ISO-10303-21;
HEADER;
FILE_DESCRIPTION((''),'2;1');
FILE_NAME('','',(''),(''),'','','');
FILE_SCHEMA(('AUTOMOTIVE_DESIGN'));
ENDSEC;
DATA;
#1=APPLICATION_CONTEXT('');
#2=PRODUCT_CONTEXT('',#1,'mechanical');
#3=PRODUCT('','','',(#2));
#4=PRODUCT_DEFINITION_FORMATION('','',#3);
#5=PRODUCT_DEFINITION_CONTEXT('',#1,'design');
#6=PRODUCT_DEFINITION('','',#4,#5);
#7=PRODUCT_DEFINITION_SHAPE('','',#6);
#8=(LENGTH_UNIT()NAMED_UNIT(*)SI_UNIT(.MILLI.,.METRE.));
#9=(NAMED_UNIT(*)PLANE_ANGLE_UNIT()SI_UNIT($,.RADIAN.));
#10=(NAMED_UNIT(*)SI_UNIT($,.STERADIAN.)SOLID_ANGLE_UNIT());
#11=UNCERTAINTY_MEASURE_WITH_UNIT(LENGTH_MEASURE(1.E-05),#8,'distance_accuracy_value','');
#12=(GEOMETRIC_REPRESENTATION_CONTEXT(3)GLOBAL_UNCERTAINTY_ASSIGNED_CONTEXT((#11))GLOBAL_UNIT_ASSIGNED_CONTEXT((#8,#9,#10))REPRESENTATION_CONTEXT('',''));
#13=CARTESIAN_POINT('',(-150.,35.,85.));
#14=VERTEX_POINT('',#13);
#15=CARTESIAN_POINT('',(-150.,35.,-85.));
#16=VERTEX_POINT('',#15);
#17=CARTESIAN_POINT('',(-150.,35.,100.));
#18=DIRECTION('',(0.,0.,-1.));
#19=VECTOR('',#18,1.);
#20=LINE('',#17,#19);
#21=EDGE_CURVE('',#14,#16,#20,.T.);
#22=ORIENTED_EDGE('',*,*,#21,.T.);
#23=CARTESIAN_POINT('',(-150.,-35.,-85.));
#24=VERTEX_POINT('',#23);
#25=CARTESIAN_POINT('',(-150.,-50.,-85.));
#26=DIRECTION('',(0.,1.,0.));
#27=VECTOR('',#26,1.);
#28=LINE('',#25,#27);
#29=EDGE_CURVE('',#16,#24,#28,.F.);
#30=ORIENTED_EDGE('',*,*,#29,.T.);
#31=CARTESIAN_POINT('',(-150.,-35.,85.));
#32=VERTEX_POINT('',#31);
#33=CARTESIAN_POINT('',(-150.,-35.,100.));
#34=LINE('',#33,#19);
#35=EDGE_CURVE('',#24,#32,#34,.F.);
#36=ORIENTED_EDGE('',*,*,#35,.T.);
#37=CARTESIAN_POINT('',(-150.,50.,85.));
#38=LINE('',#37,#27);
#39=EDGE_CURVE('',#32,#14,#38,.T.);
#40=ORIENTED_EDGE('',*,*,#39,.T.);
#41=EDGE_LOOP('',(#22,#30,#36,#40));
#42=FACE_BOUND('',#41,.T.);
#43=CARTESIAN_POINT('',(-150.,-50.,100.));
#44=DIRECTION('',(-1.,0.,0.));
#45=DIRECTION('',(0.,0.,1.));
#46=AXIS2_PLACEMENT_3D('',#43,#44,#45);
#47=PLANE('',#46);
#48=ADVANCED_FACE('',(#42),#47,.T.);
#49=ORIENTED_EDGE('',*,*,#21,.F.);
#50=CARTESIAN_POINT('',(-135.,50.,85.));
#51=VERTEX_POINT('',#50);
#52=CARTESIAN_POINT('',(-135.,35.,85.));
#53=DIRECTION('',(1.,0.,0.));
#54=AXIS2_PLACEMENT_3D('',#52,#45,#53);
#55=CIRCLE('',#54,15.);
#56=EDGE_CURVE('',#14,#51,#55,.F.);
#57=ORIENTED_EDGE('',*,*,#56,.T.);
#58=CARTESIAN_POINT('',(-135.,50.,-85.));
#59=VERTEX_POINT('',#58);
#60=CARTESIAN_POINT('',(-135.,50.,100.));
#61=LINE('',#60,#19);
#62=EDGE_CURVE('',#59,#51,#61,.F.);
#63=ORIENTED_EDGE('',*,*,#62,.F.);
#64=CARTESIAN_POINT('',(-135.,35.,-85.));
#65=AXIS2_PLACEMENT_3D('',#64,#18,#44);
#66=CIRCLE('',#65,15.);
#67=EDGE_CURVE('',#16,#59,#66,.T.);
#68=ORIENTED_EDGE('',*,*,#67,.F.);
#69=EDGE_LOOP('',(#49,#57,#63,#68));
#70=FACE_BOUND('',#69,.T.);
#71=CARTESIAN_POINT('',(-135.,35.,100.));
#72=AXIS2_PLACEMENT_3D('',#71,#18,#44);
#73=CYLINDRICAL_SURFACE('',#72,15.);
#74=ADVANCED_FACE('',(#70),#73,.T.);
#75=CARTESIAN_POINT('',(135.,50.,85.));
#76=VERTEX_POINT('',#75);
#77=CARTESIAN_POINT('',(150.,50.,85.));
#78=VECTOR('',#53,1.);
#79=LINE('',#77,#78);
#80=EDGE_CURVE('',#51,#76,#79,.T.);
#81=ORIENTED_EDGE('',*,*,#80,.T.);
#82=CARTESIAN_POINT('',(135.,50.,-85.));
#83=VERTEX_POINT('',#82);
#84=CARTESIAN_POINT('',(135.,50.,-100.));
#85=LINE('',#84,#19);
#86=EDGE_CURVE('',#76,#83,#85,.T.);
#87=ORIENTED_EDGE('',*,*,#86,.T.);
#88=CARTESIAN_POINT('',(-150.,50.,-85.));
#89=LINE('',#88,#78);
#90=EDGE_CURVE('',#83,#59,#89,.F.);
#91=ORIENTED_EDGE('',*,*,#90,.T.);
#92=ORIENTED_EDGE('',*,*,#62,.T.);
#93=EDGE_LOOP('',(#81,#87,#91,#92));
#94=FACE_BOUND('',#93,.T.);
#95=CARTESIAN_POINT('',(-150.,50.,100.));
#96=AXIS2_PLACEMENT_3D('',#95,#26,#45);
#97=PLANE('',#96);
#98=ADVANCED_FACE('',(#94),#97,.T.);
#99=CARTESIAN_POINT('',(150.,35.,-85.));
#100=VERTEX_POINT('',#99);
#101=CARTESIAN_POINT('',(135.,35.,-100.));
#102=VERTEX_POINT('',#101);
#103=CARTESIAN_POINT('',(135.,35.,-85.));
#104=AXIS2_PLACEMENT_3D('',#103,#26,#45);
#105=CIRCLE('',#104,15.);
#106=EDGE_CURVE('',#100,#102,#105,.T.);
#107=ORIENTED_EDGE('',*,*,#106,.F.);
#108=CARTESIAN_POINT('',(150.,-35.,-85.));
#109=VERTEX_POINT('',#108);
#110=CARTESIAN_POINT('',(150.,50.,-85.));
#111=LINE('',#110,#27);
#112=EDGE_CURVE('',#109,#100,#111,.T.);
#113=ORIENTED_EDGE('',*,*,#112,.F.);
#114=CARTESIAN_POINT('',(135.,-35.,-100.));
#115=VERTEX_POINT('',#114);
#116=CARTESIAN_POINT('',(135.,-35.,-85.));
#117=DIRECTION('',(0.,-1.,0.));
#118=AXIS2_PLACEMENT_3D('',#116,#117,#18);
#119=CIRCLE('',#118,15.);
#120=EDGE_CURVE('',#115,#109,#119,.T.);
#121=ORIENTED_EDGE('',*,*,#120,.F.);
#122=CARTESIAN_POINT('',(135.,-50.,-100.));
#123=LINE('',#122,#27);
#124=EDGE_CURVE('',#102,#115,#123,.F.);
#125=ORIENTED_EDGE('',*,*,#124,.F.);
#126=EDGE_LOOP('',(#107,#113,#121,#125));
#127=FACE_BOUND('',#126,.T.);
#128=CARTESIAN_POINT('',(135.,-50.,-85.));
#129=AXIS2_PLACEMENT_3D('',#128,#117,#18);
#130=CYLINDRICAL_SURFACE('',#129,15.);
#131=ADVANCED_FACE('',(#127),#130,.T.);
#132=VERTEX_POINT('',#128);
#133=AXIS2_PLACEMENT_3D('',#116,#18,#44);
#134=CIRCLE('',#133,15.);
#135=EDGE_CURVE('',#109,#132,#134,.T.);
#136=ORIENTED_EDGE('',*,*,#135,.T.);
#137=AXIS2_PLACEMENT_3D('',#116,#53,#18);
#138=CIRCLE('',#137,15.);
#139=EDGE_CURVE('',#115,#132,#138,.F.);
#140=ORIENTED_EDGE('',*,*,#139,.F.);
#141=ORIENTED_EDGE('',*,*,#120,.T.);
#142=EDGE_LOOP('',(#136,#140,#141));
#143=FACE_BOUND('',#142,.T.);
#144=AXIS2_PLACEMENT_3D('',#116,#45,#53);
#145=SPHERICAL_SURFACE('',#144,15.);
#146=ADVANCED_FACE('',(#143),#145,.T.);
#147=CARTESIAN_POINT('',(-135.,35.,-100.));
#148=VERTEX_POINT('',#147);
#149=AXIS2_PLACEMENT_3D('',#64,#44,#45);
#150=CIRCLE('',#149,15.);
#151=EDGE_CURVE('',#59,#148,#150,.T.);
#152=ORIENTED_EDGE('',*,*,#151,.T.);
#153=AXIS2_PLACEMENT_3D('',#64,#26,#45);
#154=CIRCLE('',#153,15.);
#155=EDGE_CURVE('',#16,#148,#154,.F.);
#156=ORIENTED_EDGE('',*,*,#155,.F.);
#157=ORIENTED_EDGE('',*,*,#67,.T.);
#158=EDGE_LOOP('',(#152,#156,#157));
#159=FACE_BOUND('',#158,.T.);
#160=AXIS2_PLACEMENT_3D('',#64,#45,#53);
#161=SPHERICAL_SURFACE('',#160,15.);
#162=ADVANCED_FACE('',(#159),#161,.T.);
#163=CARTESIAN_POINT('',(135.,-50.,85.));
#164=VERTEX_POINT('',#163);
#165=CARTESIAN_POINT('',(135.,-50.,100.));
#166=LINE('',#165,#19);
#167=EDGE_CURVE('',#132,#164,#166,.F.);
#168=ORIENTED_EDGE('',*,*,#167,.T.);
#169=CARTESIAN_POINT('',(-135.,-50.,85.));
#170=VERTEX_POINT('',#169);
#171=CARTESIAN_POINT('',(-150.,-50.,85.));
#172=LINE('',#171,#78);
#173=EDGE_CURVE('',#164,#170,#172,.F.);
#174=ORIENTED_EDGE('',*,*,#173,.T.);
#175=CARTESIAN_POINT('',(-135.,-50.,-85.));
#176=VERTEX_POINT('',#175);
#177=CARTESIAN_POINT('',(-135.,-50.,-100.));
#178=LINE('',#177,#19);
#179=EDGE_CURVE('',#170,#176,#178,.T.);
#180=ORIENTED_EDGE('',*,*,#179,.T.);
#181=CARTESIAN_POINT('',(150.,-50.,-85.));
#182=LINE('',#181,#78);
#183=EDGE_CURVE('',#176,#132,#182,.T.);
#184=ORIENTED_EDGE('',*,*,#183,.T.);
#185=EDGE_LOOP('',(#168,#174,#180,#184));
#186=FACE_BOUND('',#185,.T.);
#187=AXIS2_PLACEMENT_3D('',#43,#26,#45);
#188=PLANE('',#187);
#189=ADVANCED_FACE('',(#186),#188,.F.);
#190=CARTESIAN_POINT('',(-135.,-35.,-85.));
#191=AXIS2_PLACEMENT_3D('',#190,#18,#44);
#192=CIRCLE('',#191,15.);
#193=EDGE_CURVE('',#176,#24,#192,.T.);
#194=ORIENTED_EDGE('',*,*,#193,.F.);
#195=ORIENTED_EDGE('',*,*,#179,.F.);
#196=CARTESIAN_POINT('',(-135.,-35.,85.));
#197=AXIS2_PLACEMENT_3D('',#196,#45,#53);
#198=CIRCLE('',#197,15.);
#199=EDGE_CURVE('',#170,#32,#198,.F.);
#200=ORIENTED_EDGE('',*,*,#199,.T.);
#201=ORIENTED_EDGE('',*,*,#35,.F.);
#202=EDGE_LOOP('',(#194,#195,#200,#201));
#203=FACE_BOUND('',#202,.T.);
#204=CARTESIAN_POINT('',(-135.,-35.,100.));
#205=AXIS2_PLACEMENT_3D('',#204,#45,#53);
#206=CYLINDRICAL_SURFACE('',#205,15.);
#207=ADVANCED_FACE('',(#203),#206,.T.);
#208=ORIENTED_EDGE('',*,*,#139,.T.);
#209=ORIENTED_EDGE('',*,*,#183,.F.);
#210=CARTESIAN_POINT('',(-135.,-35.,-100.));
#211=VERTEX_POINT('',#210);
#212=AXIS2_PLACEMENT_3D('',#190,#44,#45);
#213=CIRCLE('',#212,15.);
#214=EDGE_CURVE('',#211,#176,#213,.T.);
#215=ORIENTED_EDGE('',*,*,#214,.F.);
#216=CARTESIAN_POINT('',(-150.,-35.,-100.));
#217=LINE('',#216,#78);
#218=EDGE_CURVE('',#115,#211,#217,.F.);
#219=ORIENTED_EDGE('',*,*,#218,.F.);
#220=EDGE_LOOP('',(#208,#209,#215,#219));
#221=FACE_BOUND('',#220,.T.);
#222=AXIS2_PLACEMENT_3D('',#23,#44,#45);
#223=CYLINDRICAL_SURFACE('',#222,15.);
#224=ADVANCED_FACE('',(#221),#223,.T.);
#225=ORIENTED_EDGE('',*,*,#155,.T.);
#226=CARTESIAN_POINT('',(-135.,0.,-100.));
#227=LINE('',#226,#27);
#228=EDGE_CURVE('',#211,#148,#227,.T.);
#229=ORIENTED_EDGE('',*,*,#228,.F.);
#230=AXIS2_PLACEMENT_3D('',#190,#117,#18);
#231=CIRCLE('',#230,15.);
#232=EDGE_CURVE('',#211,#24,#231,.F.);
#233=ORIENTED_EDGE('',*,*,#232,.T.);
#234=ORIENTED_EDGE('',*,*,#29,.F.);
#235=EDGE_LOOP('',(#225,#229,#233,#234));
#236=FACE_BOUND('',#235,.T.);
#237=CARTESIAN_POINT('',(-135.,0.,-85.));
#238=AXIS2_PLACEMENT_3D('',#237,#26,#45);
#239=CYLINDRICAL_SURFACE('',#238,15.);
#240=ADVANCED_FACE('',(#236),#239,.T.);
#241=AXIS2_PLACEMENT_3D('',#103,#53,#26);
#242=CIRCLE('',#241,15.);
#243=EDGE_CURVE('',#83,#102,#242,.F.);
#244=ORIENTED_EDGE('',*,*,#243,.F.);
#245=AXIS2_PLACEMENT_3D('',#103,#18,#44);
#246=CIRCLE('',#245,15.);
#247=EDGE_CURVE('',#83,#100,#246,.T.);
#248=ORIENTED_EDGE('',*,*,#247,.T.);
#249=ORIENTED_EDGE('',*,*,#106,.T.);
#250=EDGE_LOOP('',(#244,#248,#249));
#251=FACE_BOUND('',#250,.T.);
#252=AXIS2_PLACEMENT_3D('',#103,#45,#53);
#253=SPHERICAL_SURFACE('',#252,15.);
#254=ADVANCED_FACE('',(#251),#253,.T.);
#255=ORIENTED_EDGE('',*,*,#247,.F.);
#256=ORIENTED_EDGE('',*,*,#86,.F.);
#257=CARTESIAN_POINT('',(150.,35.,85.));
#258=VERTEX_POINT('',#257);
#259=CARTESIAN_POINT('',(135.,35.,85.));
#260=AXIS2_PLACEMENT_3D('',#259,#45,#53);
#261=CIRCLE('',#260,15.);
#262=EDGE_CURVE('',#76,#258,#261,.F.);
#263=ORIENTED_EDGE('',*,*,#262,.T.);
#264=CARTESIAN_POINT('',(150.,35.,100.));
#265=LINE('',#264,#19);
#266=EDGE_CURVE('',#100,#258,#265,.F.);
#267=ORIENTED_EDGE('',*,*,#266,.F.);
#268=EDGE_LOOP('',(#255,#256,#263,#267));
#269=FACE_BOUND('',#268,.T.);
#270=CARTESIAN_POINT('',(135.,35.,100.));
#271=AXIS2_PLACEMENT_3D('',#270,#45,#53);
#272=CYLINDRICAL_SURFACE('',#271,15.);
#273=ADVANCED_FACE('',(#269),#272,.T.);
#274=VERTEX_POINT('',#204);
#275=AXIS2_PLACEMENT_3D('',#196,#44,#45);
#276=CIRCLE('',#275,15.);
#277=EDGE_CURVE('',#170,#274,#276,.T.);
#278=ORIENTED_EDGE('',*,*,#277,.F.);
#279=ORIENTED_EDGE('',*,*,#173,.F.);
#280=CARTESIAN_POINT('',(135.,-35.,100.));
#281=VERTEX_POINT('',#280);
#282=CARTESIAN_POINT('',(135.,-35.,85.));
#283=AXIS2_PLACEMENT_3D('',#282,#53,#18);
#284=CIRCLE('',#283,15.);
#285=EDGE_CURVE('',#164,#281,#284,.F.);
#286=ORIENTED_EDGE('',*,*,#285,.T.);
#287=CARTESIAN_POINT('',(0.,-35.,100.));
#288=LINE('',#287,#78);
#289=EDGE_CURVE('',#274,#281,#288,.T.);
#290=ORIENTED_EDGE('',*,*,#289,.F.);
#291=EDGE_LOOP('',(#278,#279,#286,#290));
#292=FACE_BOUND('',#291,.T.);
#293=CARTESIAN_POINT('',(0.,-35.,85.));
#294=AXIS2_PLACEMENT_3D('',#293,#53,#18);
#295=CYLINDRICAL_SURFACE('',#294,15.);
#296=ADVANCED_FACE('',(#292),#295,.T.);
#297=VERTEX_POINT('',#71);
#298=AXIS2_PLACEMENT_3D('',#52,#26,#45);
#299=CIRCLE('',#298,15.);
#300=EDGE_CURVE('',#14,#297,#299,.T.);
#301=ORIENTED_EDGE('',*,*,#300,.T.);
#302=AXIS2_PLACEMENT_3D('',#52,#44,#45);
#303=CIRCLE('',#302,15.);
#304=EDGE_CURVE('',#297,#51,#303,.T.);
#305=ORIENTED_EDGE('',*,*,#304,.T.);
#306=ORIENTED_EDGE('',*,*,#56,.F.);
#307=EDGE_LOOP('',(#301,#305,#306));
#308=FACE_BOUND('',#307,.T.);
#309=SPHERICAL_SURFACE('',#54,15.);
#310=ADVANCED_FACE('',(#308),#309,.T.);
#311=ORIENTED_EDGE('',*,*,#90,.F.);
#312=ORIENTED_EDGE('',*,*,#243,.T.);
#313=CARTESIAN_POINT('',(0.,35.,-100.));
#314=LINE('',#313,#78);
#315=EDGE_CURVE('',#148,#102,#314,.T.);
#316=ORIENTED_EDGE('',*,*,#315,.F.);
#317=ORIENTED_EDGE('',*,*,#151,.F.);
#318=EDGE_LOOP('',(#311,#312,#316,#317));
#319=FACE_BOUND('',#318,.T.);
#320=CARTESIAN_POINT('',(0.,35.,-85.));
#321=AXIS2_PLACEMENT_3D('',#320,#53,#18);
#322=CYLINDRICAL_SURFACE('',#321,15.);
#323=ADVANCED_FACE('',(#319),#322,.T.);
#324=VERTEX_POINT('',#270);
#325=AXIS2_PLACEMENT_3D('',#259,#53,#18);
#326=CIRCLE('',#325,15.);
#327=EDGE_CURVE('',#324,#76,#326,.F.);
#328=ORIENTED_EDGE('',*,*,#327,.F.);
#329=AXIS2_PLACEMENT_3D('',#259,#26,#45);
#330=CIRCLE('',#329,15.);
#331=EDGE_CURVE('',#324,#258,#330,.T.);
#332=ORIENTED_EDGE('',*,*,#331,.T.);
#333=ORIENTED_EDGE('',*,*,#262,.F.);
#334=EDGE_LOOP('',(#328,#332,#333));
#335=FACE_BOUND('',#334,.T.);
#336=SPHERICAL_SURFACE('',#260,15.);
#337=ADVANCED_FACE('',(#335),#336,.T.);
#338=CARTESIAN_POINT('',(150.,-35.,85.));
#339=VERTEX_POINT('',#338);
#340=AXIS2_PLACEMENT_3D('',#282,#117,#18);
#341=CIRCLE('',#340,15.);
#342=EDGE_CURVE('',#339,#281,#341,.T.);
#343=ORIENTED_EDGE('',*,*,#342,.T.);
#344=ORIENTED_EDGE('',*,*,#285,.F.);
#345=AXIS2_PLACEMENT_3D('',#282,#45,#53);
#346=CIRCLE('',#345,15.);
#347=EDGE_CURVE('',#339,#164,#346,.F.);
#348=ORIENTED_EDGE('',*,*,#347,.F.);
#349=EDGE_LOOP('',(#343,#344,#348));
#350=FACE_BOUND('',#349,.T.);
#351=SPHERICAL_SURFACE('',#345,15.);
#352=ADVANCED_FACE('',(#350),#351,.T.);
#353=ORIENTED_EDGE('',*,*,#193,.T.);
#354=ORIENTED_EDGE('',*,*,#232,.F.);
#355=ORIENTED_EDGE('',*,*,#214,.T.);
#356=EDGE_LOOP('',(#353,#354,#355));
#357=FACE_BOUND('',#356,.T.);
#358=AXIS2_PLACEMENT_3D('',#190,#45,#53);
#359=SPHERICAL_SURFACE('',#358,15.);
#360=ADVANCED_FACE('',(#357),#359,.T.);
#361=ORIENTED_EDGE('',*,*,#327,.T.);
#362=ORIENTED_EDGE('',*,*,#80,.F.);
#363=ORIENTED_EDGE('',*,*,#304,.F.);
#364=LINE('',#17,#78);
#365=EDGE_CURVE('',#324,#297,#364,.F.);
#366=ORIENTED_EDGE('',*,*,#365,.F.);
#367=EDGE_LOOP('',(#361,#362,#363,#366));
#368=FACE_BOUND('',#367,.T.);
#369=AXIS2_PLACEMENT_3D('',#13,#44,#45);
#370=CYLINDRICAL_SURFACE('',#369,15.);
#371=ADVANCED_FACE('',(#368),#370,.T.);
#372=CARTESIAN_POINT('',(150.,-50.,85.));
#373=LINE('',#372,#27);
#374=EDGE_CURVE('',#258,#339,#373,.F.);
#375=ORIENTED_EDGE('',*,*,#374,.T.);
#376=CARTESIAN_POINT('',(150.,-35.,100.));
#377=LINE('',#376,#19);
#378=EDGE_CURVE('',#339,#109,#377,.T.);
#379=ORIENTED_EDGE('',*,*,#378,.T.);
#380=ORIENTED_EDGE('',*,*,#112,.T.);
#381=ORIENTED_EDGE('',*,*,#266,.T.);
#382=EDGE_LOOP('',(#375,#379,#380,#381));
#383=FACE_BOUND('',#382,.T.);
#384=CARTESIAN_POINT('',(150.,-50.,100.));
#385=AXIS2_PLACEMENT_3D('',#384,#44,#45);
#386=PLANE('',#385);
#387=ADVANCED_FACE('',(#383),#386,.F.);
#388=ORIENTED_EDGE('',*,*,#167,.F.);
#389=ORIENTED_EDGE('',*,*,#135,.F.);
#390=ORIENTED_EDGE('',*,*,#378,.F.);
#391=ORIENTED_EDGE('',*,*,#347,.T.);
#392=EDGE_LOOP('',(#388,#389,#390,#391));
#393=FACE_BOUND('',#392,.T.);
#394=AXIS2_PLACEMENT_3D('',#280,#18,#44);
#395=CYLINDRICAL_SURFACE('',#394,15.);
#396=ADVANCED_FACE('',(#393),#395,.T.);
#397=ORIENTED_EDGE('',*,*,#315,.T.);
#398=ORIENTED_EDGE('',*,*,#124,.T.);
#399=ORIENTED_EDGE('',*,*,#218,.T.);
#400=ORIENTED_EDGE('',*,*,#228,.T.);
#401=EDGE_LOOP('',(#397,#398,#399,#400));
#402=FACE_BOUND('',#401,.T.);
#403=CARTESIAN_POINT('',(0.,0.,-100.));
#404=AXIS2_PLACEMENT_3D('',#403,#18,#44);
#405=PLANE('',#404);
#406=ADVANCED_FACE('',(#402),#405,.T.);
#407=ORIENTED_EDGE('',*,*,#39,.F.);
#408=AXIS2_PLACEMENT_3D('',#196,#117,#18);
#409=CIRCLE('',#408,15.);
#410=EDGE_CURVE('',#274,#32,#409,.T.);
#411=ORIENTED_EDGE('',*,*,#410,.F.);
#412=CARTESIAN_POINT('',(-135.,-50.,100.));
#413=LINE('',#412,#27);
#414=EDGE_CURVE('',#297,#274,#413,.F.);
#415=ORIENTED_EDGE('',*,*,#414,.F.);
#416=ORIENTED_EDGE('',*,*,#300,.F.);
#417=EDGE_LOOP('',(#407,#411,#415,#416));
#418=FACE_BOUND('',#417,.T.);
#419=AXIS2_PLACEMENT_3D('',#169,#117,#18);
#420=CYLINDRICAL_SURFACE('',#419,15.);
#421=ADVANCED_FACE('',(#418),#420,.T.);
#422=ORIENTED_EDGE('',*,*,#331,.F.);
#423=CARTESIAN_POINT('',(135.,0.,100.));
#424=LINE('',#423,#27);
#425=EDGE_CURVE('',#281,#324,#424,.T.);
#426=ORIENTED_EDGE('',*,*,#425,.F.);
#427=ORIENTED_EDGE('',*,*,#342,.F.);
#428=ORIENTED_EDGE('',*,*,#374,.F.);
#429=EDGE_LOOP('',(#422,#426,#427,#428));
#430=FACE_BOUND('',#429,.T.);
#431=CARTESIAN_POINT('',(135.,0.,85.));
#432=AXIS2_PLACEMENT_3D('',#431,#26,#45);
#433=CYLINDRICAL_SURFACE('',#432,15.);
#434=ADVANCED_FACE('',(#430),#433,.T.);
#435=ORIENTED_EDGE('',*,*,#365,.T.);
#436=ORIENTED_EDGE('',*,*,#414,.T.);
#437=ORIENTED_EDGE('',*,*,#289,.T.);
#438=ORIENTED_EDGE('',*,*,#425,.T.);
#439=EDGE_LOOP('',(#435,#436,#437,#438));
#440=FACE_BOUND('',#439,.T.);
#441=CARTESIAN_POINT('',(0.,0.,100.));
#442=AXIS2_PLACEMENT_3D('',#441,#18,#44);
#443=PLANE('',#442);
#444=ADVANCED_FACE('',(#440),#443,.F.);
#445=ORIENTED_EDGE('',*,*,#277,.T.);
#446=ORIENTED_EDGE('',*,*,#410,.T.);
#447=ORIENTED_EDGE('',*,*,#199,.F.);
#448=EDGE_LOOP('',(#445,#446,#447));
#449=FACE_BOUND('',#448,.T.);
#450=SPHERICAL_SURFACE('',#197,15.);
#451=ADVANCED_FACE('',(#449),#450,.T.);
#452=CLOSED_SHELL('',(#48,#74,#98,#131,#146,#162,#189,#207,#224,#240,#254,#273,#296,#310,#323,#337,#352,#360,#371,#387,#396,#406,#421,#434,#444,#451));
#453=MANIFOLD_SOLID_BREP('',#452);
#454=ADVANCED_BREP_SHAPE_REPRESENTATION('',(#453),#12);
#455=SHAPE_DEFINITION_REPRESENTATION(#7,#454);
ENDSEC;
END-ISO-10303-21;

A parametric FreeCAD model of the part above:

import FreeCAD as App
import Part
import Sketcher
Q = App.Units.Quantity

doc = App.newDocument("Part")
body = doc.addObject("PartDesign::Body", "Body")

# Sketch on XY plane
sketch1 = body.newObject("Sketcher::SketchObject", "Sketch")
sketch1.AttachmentSupport = (doc.getObject("XY_Plane"), [""])
sketch1.MapMode = "FlatFace"
sketch1.addGeometry([
    Part.LineSegment(App.Vector(-150, 50, 0), App.Vector(-150, -50, 0)),
    Part.LineSegment(App.Vector(-150, -50, 0), App.Vector(150, -50, 0)),
    Part.LineSegment(App.Vector(150, -50, 0), App.Vector(150, 50, 0)),
    Part.LineSegment(App.Vector(150, 50, 0), App.Vector(-150, 50, 0)),
], False)
sketch1.addConstraint([
    Sketcher.Constraint("Coincident", 0, 2, 1, 1),
    Sketcher.Constraint("Coincident", 1, 2, 2, 1),
    Sketcher.Constraint("Coincident", 2, 2, 3, 1),
    Sketcher.Constraint("Coincident", 3, 2, 0, 1),
    Sketcher.Constraint("Vertical", 0),
    Sketcher.Constraint("Horizontal", 1),
    Sketcher.Constraint("Vertical", 2),
    Sketcher.Constraint("Horizontal", 3),
    Sketcher.Constraint("Symmetric", 0, 2, 2, 2, -1, 1),
    Sketcher.Constraint("DistanceX", 1, 1, 1, 2, Q("300 mm")),
    Sketcher.Constraint("DistanceY", 0, 2, 0, 1, Q("100 mm")),
])
pad1 = body.newObject("PartDesign::Pad", "Pad")
pad1.Profile = sketch1
pad1.Length = 200
pad1.Midplane = True
doc.recompute()

fillet = body.newObject("PartDesign::Fillet", "Fillet")
fillet.Base = (pad1, ["Edge1"])
fillet.UseAllEdges = True
fillet.Radius = 15

doc.recompute()
